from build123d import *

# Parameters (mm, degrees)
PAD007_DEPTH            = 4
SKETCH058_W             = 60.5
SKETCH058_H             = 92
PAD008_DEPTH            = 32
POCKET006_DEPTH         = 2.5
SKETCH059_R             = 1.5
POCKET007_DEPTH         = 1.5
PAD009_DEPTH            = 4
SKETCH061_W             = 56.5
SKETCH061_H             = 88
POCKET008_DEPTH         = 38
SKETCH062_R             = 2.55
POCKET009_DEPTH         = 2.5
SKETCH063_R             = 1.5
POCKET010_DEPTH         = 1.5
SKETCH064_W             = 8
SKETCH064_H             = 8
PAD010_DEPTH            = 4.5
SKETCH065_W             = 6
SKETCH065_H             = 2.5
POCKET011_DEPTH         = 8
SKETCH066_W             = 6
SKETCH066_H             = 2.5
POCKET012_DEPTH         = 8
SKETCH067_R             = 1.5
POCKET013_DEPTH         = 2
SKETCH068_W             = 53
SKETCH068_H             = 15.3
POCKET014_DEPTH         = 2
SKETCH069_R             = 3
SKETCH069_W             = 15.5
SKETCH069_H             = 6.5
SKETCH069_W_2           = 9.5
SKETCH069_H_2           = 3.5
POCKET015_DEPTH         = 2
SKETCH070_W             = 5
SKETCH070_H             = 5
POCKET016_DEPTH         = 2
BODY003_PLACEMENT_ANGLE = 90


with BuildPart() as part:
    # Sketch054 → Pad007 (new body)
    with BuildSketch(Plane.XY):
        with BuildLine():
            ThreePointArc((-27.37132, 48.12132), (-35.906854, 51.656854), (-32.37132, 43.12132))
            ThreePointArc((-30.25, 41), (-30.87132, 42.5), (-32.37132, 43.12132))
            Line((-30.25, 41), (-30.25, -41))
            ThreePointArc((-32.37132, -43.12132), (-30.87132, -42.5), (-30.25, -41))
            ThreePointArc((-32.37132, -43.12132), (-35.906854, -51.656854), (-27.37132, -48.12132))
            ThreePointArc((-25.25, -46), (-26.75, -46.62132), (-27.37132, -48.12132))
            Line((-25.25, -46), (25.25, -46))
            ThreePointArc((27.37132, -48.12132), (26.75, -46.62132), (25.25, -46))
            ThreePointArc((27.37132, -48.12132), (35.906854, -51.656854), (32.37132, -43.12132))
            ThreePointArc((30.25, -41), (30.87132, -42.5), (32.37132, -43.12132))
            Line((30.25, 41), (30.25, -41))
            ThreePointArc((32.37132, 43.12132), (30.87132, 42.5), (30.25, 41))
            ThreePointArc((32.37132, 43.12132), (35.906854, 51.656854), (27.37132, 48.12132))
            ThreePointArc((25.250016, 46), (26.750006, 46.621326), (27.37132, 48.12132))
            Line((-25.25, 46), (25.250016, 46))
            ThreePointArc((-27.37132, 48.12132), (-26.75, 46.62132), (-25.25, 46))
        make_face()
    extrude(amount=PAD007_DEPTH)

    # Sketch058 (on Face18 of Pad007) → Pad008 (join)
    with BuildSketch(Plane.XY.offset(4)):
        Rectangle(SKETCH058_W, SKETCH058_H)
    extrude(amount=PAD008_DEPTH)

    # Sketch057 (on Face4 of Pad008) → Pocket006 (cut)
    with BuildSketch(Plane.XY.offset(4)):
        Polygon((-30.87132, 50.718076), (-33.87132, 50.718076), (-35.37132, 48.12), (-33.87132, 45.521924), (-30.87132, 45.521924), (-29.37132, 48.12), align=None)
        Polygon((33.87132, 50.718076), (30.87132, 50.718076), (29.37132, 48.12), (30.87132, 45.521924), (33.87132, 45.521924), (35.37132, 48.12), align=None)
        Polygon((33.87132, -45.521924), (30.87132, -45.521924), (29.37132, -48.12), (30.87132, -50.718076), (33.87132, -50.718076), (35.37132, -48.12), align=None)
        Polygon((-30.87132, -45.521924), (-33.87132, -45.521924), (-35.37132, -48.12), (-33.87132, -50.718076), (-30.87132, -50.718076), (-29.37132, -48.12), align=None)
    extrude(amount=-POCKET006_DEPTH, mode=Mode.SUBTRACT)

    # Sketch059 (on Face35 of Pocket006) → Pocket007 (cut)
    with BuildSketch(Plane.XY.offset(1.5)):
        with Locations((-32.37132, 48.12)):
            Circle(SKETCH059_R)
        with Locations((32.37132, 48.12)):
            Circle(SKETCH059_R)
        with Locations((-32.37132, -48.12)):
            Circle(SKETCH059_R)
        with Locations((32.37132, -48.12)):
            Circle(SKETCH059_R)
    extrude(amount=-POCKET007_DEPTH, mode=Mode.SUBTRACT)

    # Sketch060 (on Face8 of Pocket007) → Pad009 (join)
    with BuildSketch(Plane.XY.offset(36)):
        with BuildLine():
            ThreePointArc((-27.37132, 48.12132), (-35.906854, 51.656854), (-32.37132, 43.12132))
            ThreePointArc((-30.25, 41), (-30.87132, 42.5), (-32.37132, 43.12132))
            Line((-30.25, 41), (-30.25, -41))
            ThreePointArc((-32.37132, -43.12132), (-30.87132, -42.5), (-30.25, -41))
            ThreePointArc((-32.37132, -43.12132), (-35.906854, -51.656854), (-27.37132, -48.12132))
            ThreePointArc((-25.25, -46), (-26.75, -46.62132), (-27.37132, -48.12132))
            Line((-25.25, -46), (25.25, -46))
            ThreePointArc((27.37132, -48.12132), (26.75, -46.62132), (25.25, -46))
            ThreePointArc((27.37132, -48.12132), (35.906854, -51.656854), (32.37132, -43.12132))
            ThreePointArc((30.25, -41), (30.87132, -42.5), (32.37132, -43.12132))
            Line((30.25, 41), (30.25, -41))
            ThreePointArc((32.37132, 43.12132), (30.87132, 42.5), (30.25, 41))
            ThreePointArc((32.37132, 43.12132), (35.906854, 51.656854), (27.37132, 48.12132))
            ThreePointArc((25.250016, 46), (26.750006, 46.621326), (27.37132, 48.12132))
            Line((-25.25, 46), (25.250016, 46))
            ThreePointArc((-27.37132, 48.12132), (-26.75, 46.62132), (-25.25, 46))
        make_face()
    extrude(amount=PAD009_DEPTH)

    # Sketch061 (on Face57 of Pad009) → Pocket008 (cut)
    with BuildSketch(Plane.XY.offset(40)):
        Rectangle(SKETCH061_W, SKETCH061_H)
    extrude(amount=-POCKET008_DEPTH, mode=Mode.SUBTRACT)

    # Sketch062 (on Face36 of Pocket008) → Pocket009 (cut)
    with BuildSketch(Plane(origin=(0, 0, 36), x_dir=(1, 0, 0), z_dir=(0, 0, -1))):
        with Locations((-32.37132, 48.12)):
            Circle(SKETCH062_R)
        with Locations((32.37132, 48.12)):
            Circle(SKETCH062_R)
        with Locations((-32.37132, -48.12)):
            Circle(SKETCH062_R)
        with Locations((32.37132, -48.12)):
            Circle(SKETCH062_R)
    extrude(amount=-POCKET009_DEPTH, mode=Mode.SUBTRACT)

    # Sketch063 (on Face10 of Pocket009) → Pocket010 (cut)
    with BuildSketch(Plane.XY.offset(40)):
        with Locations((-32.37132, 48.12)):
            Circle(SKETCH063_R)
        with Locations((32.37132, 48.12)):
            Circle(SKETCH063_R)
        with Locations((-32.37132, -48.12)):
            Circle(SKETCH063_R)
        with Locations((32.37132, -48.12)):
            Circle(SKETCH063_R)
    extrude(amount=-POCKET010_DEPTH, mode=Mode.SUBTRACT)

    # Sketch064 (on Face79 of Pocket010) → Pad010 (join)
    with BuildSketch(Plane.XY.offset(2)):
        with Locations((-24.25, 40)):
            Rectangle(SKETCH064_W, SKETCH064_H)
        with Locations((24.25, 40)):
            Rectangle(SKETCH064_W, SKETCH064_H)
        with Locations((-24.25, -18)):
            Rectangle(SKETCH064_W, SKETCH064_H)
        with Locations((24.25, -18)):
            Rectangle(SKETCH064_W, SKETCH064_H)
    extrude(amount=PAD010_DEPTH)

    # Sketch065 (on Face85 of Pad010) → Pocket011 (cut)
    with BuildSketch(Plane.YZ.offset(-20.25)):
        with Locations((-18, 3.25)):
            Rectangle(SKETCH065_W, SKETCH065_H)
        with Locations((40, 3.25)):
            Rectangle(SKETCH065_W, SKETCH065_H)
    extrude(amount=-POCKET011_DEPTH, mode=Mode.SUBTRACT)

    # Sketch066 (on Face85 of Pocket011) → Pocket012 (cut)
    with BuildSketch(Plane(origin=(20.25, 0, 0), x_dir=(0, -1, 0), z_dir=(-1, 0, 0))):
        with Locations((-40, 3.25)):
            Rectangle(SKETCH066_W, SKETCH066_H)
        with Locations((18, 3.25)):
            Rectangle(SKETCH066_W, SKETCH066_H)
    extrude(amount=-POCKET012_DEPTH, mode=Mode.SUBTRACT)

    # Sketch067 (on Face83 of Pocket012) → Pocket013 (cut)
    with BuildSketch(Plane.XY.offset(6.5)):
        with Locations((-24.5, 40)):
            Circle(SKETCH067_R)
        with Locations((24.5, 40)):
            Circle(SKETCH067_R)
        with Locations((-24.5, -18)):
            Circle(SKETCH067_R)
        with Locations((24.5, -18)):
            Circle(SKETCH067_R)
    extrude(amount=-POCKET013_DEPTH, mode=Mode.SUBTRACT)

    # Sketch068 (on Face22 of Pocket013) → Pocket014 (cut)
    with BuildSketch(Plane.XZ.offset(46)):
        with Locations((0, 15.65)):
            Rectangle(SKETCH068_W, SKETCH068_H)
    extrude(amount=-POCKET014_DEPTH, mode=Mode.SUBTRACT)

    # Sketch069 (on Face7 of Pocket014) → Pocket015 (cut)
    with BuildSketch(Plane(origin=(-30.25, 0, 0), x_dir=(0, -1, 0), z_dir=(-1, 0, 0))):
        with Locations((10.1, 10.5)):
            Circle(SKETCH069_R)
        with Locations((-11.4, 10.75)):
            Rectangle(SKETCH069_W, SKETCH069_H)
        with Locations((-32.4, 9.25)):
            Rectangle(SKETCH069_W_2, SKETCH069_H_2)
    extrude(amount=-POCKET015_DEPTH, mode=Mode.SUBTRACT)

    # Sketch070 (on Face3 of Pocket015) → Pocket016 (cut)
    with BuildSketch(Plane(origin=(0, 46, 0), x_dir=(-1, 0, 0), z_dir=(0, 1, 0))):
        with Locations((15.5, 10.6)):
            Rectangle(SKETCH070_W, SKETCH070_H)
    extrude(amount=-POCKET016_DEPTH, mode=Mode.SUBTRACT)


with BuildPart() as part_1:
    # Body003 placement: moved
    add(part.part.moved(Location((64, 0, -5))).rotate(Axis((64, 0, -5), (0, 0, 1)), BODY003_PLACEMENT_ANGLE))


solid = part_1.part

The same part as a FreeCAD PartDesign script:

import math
import FreeCAD as App
import Part
import Sketcher
Q = App.Units.Quantity


def add_polygon(sketch, points):
    """Adds a closed chain of lines whose ends are joined by coincident constraints."""
    first, n = sketch.GeometryCount, len(points)
    for a, b in zip(points, points[1:] + points[:1]):
        sketch.addGeometry(Part.LineSegment(App.Vector(*a, 0), App.Vector(*b, 0)), False)
    for i in range(n):
        sketch.addConstraint(Sketcher.Constraint("Coincident", first + i, 2, first + (i + 1) % n, 1))

doc = App.newDocument("Part")
body = doc.addObject("PartDesign::Body", "Body")

# Sketch on XY plane
sketch1 = body.newObject("Sketcher::SketchObject", "Sketch")
sketch1.AttachmentSupport = (doc.getObject("XY_Plane"), [""])
sketch1.MapMode = "FlatFace"
sketch1.addGeometry(Part.ArcOfCircle(Part.Circle(App.Vector(-32.4, 48.1, 0), App.Vector(0, 0, 1), 5), math.radians(0), math.radians(270)), False)
sketch1.addGeometry(Part.ArcOfCircle(Part.Circle(App.Vector(-32.4, 41, 0), App.Vector(0, 0, 1), 2.1), math.radians(0), math.radians(90)), False)
sketch1.addGeometry(Part.LineSegment(App.Vector(-30.2, 41, 0), App.Vector(-30.2, -41, 0)), False)
sketch1.addGeometry(Part.ArcOfCircle(Part.Circle(App.Vector(-32.4, -41, 0), App.Vector(0, 0, 1), 2.1), math.radians(-90), math.radians(0)), False)
sketch1.addGeometry(Part.ArcOfCircle(Part.Circle(App.Vector(-32.4, -48.1, 0), App.Vector(0, 0, 1), 5), math.radians(90), math.radians(360)), False)
sketch1.addGeometry(Part.ArcOfCircle(Part.Circle(App.Vector(-25.3, -48.1, 0), App.Vector(0, 0, 1), 2.1), math.radians(90), math.radians(180)), False)
sketch1.addGeometry(Part.LineSegment(App.Vector(-25.2, -46, 0), App.Vector(25.2, -46, 0)), False)
sketch1.addGeometry(Part.ArcOfCircle(Part.Circle(App.Vector(25.3, -48.1, 0), App.Vector(0, 0, 1), 2.1), math.radians(0), math.radians(90)), False)
sketch1.addGeometry(Part.ArcOfCircle(Part.Circle(App.Vector(32.4, -48.1, 0), App.Vector(0, 0, 1), 5), math.radians(180), math.radians(450)), False)
sketch1.addGeometry(Part.ArcOfCircle(Part.Circle(App.Vector(32.4, -41, 0), App.Vector(0, 0, 1), 2.1), math.radians(180), math.radians(270)), False)
sketch1.addGeometry(Part.LineSegment(App.Vector(30.2, -41, 0), App.Vector(30.2, 41, 0)), False)
sketch1.addGeometry(Part.ArcOfCircle(Part.Circle(App.Vector(32.4, 41, 0), App.Vector(0, 0, 1), 2.1), math.radians(90), math.radians(180)), False)
sketch1.addGeometry(Part.ArcOfCircle(Part.Circle(App.Vector(32.4, 48.1, 0), App.Vector(0, 0, 1), 5), math.radians(-90), math.radians(180)), False)
sketch1.addGeometry(Part.ArcOfCircle(Part.Circle(App.Vector(25.3, 48.1, 0), App.Vector(0, 0, 1), 2.1), math.radians(-90), math.radians(0)), False)
sketch1.addGeometry(Part.LineSegment(App.Vector(25.3, 46, 0), App.Vector(-25.2, 46, 0)), False)
sketch1.addGeometry(Part.ArcOfCircle(Part.Circle(App.Vector(-25.3, 48.1, 0), App.Vector(0, 0, 1), 2.1), math.radians(180), math.radians(270)), False)
sketch1.addConstraint(Sketcher.Constraint("Tangent", 0, 2, 1, 2))
sketch1.addConstraint(Sketcher.Constraint("Tangent", 1, 1, 2, 1))
sketch1.addConstraint(Sketcher.Constraint("Tangent", 2, 2, 3, 2))
sketch1.addConstraint(Sketcher.Constraint("Tangent", 3, 1, 4, 1))
sketch1.addConstraint(Sketcher.Constraint("Tangent", 4, 2, 5, 2))
sketch1.addConstraint(Sketcher.Constraint("Tangent", 5, 1, 6, 1))
sketch1.addConstraint(Sketcher.Constraint("Tangent", 6, 2, 7, 2))
sketch1.addConstraint(Sketcher.Constraint("Tangent", 7, 1, 8, 1))
sketch1.addConstraint(Sketcher.Constraint("Tangent", 8, 2, 9, 2))
sketch1.addConstraint(Sketcher.Constraint("Tangent", 9, 1, 10, 1))
sketch1.addConstraint(Sketcher.Constraint("Tangent", 10, 2, 11, 2))
sketch1.addConstraint(Sketcher.Constraint("Tangent", 11, 1, 12, 1))
sketch1.addConstraint(Sketcher.Constraint("Tangent", 12, 2, 13, 2))
sketch1.addConstraint(Sketcher.Constraint("Coincident", 13, 1, 14, 1))
sketch1.addConstraint(Sketcher.Constraint("Tangent", 14, 2, 15, 2))
sketch1.addConstraint(Sketcher.Constraint("Tangent", 15, 1, 0, 1))
sketch1.addConstraint(Sketcher.Constraint("Vertical", 2))
sketch1.addConstraint(Sketcher.Constraint("Horizontal", 6))
sketch1.addConstraint(Sketcher.Constraint("Vertical", 10))
sketch1.addConstraint(Sketcher.Constraint("Horizontal", 14))
sketch1.addConstraint(Sketcher.Constraint("Equal", 1, 3))
sketch1.addConstraint(Sketcher.Constraint("Equal", 0, 4))
sketch1.addConstraint(Sketcher.Constraint("Equal", 3, 5))
sketch1.addConstraint(Sketcher.Constraint("Equal", 5, 7))
sketch1.addConstraint(Sketcher.Constraint("Equal", 4, 8))
sketch1.addConstraint(Sketcher.Constraint("Equal", 7, 9))
sketch1.addConstraint(Sketcher.Constraint("Equal", 9, 11))
sketch1.addConstraint(Sketcher.Constraint("Equal", 8, 12))
sketch1.addConstraint(Sketcher.Constraint("Equal", 11, 13))
sketch1.addConstraint(Sketcher.Constraint("Equal", 13, 15))
sketch1.addConstraint(Sketcher.Constraint("Symmetric", 0, 3, 8, 3, -1, 1))
sketch1.addConstraint(Sketcher.Constraint("Symmetric", 3, 3, 11, 3, -1, 1))
sketch1.addConstraint(Sketcher.Constraint("Symmetric", 5, 3, 13, 3, -1, 1))
sketch1.addConstraint(Sketcher.Constraint("Symmetric", 4, 3, 8, 3, -2))
sketch1.addConstraint(Sketcher.Constraint("Horizontal", 4, 3, 5, 3))
sketch1.addConstraint(Sketcher.Constraint("Vertical", 0, 3, 1, 3))
sketch1.addConstraint(Sketcher.Constraint("Radius", 0, 5.0))
sketch1.addConstraint(Sketcher.Constraint("DistanceY", 2, 2, 2, 1, 82.0))
sketch1.addConstraint(Sketcher.Constraint("DistanceX", 6, 1, 6, 2, 50.5))
sketch1.addConstraint(Sketcher.Constraint("Radius", 1, 2.121319))
sketch1.addConstraint(Sketcher.Constraint("DistanceX", 14, 2, 14, 1, 50.500016))
pad1 = body.newObject("PartDesign::Pad", "Pad")
pad1.Profile = sketch1
pad1.Length = 4

# Sketch on XY plane
sketch2 = body.newObject("Sketcher::SketchObject", "Sketch001")
sketch2.AttachmentSupport = (doc.getObject("XY_Plane"), [""])
sketch2.MapMode = "FlatFace"
sketch2.AttachmentOffset = App.Placement(App.Vector(0, 0, 4), App.Rotation())
add_polygon(sketch2, [(-30, 46), (-30, -46), (30, -46), (30, 46)])  # lines 0-3
sketch2.addConstraint(Sketcher.Constraint("Vertical", 0))
sketch2.addConstraint(Sketcher.Constraint("Horizontal", 1))
sketch2.addConstraint(Sketcher.Constraint("Vertical", 2))
sketch2.addConstraint(Sketcher.Constraint("Horizontal", 3))
sketch2.addConstraint(Sketcher.Constraint("Symmetric", 0, 2, 2, 2, -1, 1))
sketch2.addConstraint(Sketcher.Constraint("DistanceY", 0, 2, 0, 1, 92.0))
sketch2.addConstraint(Sketcher.Constraint("DistanceX", 1, 1, 1, 2, 60.5))
pad2 = body.newObject("PartDesign::Pad", "Pad001")
pad2.Profile = sketch2
pad2.Length = 32

# Sketch on XY plane
sketch3 = body.newObject("Sketcher::SketchObject", "Sketch002")
sketch3.AttachmentSupport = (doc.getObject("XY_Plane"), [""])
sketch3.MapMode = "FlatFace"
sketch3.AttachmentOffset = App.Placement(App.Vector(0, 0, 4), App.Rotation())
add_polygon(sketch3, [(-30.9, 50.7), (-33.9, 50.7), (-35.4, 48.1), (-33.9, 45.5), (-30.9, 45.5), (-29.4, 48.1)])  # lines 0-5
add_polygon(sketch3, [(33.9, 50.7), (30.9, 50.7), (29.4, 48.1), (30.9, 45.5), (33.9, 45.5), (35.4, 48.1)])  # lines 6-11
add_polygon(sketch3, [(33.9, -45.5), (30.9, -45.5), (29.4, -48.1), (30.9, -50.7), (33.9, -50.7), (35.4, -48.1)])  # lines 12-17
add_polygon(sketch3, [(-30.9, -45.5), (-33.9, -45.5), (-35.4, -48.1), (-33.9, -50.7), (-30.9, -50.7), (-29.4, -48.1)])  # lines 18-23
sketch3.addConstraint(Sketcher.Constraint("Horizontal", 0))
sketch3.addConstraint(Sketcher.Constraint("Horizontal", 3))
sketch3.addConstraint(Sketcher.Constraint("Horizontal", 6))
sketch3.addConstraint(Sketcher.Constraint("Horizontal", 9))
sketch3.addConstraint(Sketcher.Constraint("Horizontal", 12))
sketch3.addConstraint(Sketcher.Constraint("Horizontal", 15))
sketch3.addConstraint(Sketcher.Constraint("Horizontal", 18))
sketch3.addConstraint(Sketcher.Constraint("Horizontal", 21))
sketch3.addConstraint(Sketcher.Constraint("Symmetric", 3, 2, 12, 2, -1, 1))
sketch3.addConstraint(Sketcher.Constraint("Symmetric", 4, 2, 13, 2, -1, 1))
sketch3.addConstraint(Sketcher.Constraint("Symmetric", 5, 2, 14, 2, -1, 1))
sketch3.addConstraint(Sketcher.Constraint("Symmetric", 1, 2, 16, 2, -1, 1))
sketch3.addConstraint(Sketcher.Constraint("Symmetric", 9, 2, 18, 2, -1, 1))
sketch3.addConstraint(Sketcher.Constraint("Symmetric", 10, 2, 19, 2, -1, 1))
sketch3.addConstraint(Sketcher.Constraint("Symmetric", 11, 2, 20, 2, -1, 1))
sketch3.addConstraint(Sketcher.Constraint("Symmetric", 7, 2, 22, 2, -1, 1))
sketch3.addConstraint(Sketcher.Constraint("Symmetric", 5, 2, 6, 2, -2))
sketch3.addConstraint(Sketcher.Constraint("Symmetric", 4, 2, 7, 2, -2))
sketch3.addConstraint(Sketcher.Constraint("Symmetric", 3, 2, 8, 2, -2))
sketch3.addConstraint(Sketcher.Constraint("Symmetric", 1, 2, 10, 2, -2))
sketch3.addConstraint(Sketcher.Constraint("Parallel", 1, 4))
sketch3.addConstraint(Sketcher.Constraint("Parallel", 2, 5))
sketch3.addConstraint(Sketcher.Constraint("Parallel", 4, 7))
sketch3.addConstraint(Sketcher.Constraint("Parallel", 7, 10))
sketch3.addConstraint(Sketcher.Constraint("Parallel", 8, 11))
sketch3.addConstraint(Sketcher.Constraint("Parallel", 13, 16))
sketch3.addConstraint(Sketcher.Constraint("Parallel", 14, 17))
sketch3.addConstraint(Sketcher.Constraint("Parallel", 19, 22))
sketch3.addConstraint(Sketcher.Constraint("Parallel", 20, 23))
sketch3.addConstraint(Sketcher.Constraint("Horizontal", 1, 2, 4, 2))
sketch3.addConstraint(Sketcher.Constraint("Vertical", 0, 2, 2, 2))
sketch3.addConstraint(Sketcher.Constraint("DistanceX", 0, 2, 0, 1, 3.0))
sketch3.addConstraint(Sketcher.Constraint("Angle", 1, Q("-120.000002 deg")))
sketch3.addConstraint(Sketcher.Constraint("Distance", 1, 3.0))
sketch3.addConstraint(Sketcher.Constraint("DistanceY", -1, 1, 1, 2, 48.12))
sketch3.addConstraint(Sketcher.Constraint("DistanceX", 0, 2, -1, 1, 33.87132))
pocket1 = body.newObject("PartDesign::Pocket", "Pocket")
pocket1.Profile = sketch3
pocket1.Length = 2.5

# Sketch on XY plane
sketch4 = body.newObject("Sketcher::SketchObject", "Sketch003")
sketch4.AttachmentSupport = (doc.getObject("XY_Plane"), [""])
sketch4.MapMode = "FlatFace"
sketch4.AttachmentOffset = App.Placement(App.Vector(0, 0, 1.5), App.Rotation())
sketch4.addGeometry(Part.Circle(App.Vector(-32.4, 48.1, 0), App.Vector(0, 0, 1), 1.5), False)
sketch4.addGeometry(Part.Circle(App.Vector(32.4, 48.1, 0), App.Vector(0, 0, 1), 1.5), False)
sketch4.addGeometry(Part.Circle(App.Vector(-32.4, -48.1, 0), App.Vector(0, 0, 1), 1.5), False)
sketch4.addGeometry(Part.Circle(App.Vector(32.4, -48.1, 0), App.Vector(0, 0, 1), 1.5), False)
sketch4.addConstraint(Sketcher.Constraint("Equal", 0, 1))
sketch4.addConstraint(Sketcher.Constraint("Equal", 1, 2))
sketch4.addConstraint(Sketcher.Constraint("Equal", 2, 3))
sketch4.addConstraint(Sketcher.Constraint("Symmetric", 1, 3, 2, 3, -1, 1))
sketch4.addConstraint(Sketcher.Constraint("Symmetric", 0, 3, 3, 3, -1, 1))
sketch4.addConstraint(Sketcher.Constraint("Symmetric", 0, 3, 1, 3, -2))
sketch4.addConstraint(Sketcher.Constraint("Diameter", 0, 3.0))
sketch4.addConstraint(Sketcher.Constraint("DistanceY", -1, 1, 0, 3, 48.12))
sketch4.addConstraint(Sketcher.Constraint("DistanceX", 0, 3, -1, 1, 32.37132))
pocket2 = body.newObject("PartDesign::Pocket", "Pocket001")
pocket2.Profile = sketch4
pocket2.Length = 1.5

# Sketch on XY plane
sketch5 = body.newObject("Sketcher::SketchObject", "Sketch004")
sketch5.AttachmentSupport = (doc.getObject("XY_Plane"), [""])
sketch5.MapMode = "FlatFace"
sketch5.AttachmentOffset = App.Placement(App.Vector(0, 0, 36), App.Rotation())
sketch5.addGeometry(Part.ArcOfCircle(Part.Circle(App.Vector(-32.4, 48.1, 0), App.Vector(0, 0, 1), 5), math.radians(0), math.radians(270)), False)
sketch5.addGeometry(Part.ArcOfCircle(Part.Circle(App.Vector(-32.4, 41, 0), App.Vector(0, 0, 1), 2.1), math.radians(0), math.radians(90)), False)
sketch5.addGeometry(Part.LineSegment(App.Vector(-30.2, 41, 0), App.Vector(-30.2, -41, 0)), False)
sketch5.addGeometry(Part.ArcOfCircle(Part.Circle(App.Vector(-32.4, -41, 0), App.Vector(0, 0, 1), 2.1), math.radians(-90), math.radians(0)), False)
sketch5.addGeometry(Part.ArcOfCircle(Part.Circle(App.Vector(-32.4, -48.1, 0), App.Vector(0, 0, 1), 5), math.radians(90), math.radians(360)), False)
sketch5.addGeometry(Part.ArcOfCircle(Part.Circle(App.Vector(-25.3, -48.1, 0), App.Vector(0, 0, 1), 2.1), math.radians(90), math.radians(180)), False)
sketch5.addGeometry(Part.LineSegment(App.Vector(-25.2, -46, 0), App.Vector(25.2, -46, 0)), False)
sketch5.addGeometry(Part.ArcOfCircle(Part.Circle(App.Vector(25.3, -48.1, 0), App.Vector(0, 0, 1), 2.1), math.radians(0), math.radians(90)), False)
sketch5.addGeometry(Part.ArcOfCircle(Part.Circle(App.Vector(32.4, -48.1, 0), App.Vector(0, 0, 1), 5), math.radians(180), math.radians(450)), False)
sketch5.addGeometry(Part.ArcOfCircle(Part.Circle(App.Vector(32.4, -41, 0), App.Vector(0, 0, 1), 2.1), math.radians(180), math.radians(270)), False)
sketch5.addGeometry(Part.LineSegment(App.Vector(30.2, -41, 0), App.Vector(30.2, 41, 0)), False)
sketch5.addGeometry(Part.ArcOfCircle(Part.Circle(App.Vector(32.4, 41, 0), App.Vector(0, 0, 1), 2.1), math.radians(90), math.radians(180)), False)
sketch5.addGeometry(Part.ArcOfCircle(Part.Circle(App.Vector(32.4, 48.1, 0), App.Vector(0, 0, 1), 5), math.radians(-90), math.radians(180)), False)
sketch5.addGeometry(Part.ArcOfCircle(Part.Circle(App.Vector(25.3, 48.1, 0), App.Vector(0, 0, 1), 2.1), math.radians(-90), math.radians(0)), False)
sketch5.addGeometry(Part.LineSegment(App.Vector(25.3, 46, 0), App.Vector(-25.2, 46, 0)), False)
sketch5.addGeometry(Part.ArcOfCircle(Part.Circle(App.Vector(-25.3, 48.1, 0), App.Vector(0, 0, 1), 2.1), math.radians(180), math.radians(270)), False)
sketch5.addConstraint(Sketcher.Constraint("Tangent", 0, 2, 1, 2))
sketch5.addConstraint(Sketcher.Constraint("Tangent", 1, 1, 2, 1))
sketch5.addConstraint(Sketcher.Constraint("Tangent", 2, 2, 3, 2))
sketch5.addConstraint(Sketcher.Constraint("Tangent", 3, 1, 4, 1))
sketch5.addConstraint(Sketcher.Constraint("Tangent", 4, 2, 5, 2))
sketch5.addConstraint(Sketcher.Constraint("Tangent", 5, 1, 6, 1))
sketch5.addConstraint(Sketcher.Constraint("Tangent", 6, 2, 7, 2))
sketch5.addConstraint(Sketcher.Constraint("Tangent", 7, 1, 8, 1))
sketch5.addConstraint(Sketcher.Constraint("Tangent", 8, 2, 9, 2))
sketch5.addConstraint(Sketcher.Constraint("Tangent", 9, 1, 10, 1))
sketch5.addConstraint(Sketcher.Constraint("Tangent", 10, 2, 11, 2))
sketch5.addConstraint(Sketcher.Constraint("Tangent", 11, 1, 12, 1))
sketch5.addConstraint(Sketcher.Constraint("Tangent", 12, 2, 13, 2))
sketch5.addConstraint(Sketcher.Constraint("Coincident", 13, 1, 14, 1))
sketch5.addConstraint(Sketcher.Constraint("Tangent", 14, 2, 15, 2))
sketch5.addConstraint(Sketcher.Constraint("Tangent", 15, 1, 0, 1))
sketch5.addConstraint(Sketcher.Constraint("Vertical", 2))
sketch5.addConstraint(Sketcher.Constraint("Horizontal", 6))
sketch5.addConstraint(Sketcher.Constraint("Vertical", 10))
sketch5.addConstraint(Sketcher.Constraint("Horizontal", 14))
sketch5.addConstraint(Sketcher.Constraint("Equal", 1, 3))
sketch5.addConstraint(Sketcher.Constraint("Equal", 0, 4))
sketch5.addConstraint(Sketcher.Constraint("Equal", 3, 5))
sketch5.addConstraint(Sketcher.Constraint("Equal", 5, 7))
sketch5.addConstraint(Sketcher.Constraint("Equal", 4, 8))
sketch5.addConstraint(Sketcher.Constraint("Equal", 7, 9))
sketch5.addConstraint(Sketcher.Constraint("Equal", 9, 11))
sketch5.addConstraint(Sketcher.Constraint("Equal", 8, 12))
sketch5.addConstraint(Sketcher.Constraint("Equal", 11, 13))
sketch5.addConstraint(Sketcher.Constraint("Equal", 13, 15))
sketch5.addConstraint(Sketcher.Constraint("Symmetric", 0, 3, 8, 3, -1, 1))
sketch5.addConstraint(Sketcher.Constraint("Symmetric", 3, 3, 11, 3, -1, 1))
sketch5.addConstraint(Sketcher.Constraint("Symmetric", 5, 3, 13, 3, -1, 1))
sketch5.addConstraint(Sketcher.Constraint("Symmetric", 4, 3, 8, 3, -2))
sketch5.addConstraint(Sketcher.Constraint("Horizontal", 4, 3, 5, 3))
sketch5.addConstraint(Sketcher.Constraint("Vertical", 0, 3, 1, 3))
sketch5.addConstraint(Sketcher.Constraint("Radius", 0, 5.0))
sketch5.addConstraint(Sketcher.Constraint("DistanceY", 2, 2, 2, 1, 82.0))
sketch5.addConstraint(Sketcher.Constraint("DistanceX", 6, 1, 6, 2, 50.5))
sketch5.addConstraint(Sketcher.Constraint("Radius", 1, 2.121319))
sketch5.addConstraint(Sketcher.Constraint("DistanceX", 14, 2, 14, 1, 50.500016))
pad3 = body.newObject("PartDesign::Pad", "Pad002")
pad3.Profile = sketch5
pad3.Length = 4

# Sketch on XY plane
sketch6 = body.newObject("Sketcher::SketchObject", "Sketch005")
sketch6.AttachmentSupport = (doc.getObject("XY_Plane"), [""])
sketch6.MapMode = "FlatFace"
sketch6.AttachmentOffset = App.Placement(App.Vector(0, 0, 40), App.Rotation())
add_polygon(sketch6, [(-28, 44), (-28, -44), (28, -44), (28, 44)])  # lines 0-3
sketch6.addConstraint(Sketcher.Constraint("Vertical", 0))
sketch6.addConstraint(Sketcher.Constraint("Horizontal", 1))
sketch6.addConstraint(Sketcher.Constraint("Vertical", 2))
sketch6.addConstraint(Sketcher.Constraint("Horizontal", 3))
sketch6.addConstraint(Sketcher.Constraint("Symmetric", 0, 2, 2, 2, -1, 1))
sketch6.addConstraint(Sketcher.Constraint("DistanceY", 0, 2, 0, 1, 88.0))
sketch6.addConstraint(Sketcher.Constraint("DistanceX", 1, 1, 1, 2, 56.5))
pocket3 = body.newObject("PartDesign::Pocket", "Pocket002")
pocket3.Profile = sketch6
pocket3.Length = 38

# Sketch on XY plane
sketch7 = body.newObject("Sketcher::SketchObject", "Sketch006")
sketch7.AttachmentSupport = (doc.getObject("XY_Plane"), [""])
sketch7.MapMode = "FlatFace"
sketch7.AttachmentOffset = App.Placement(App.Vector(0, 0, 36), App.Rotation())
sketch7.addGeometry(Part.Circle(App.Vector(-32.4, -48.1, 0), App.Vector(0, 0, 1), 2.5), False)
sketch7.addGeometry(Part.Circle(App.Vector(32.4, -48.1, 0), App.Vector(0, 0, 1), 2.5), False)
sketch7.addGeometry(Part.Circle(App.Vector(-32.4, 48.1, 0), App.Vector(0, 0, 1), 2.5), False)
sketch7.addGeometry(Part.Circle(App.Vector(32.4, 48.1, 0), App.Vector(0, 0, 1), 2.5), False)
sketch7.addConstraint(Sketcher.Constraint("Equal", 0, 1))
sketch7.addConstraint(Sketcher.Constraint("Equal", 1, 2))
sketch7.addConstraint(Sketcher.Constraint("Equal", 2, 3))
sketch7.addConstraint(Sketcher.Constraint("Symmetric", 1, 3, 2, 3, -1, 1))
sketch7.addConstraint(Sketcher.Constraint("Symmetric", 0, 3, 3, 3, -1, 1))
sketch7.addConstraint(Sketcher.Constraint("Symmetric", 0, 3, 1, 3, -2))
sketch7.addConstraint(Sketcher.Constraint("Diameter", 0, 5.1))
sketch7.addConstraint(Sketcher.Constraint("DistanceY", 0, 3, -1, 1, 48.12))
sketch7.addConstraint(Sketcher.Constraint("DistanceX", 0, 3, -1, 1, 32.37132))
pocket4 = body.newObject("PartDesign::Pocket", "Pocket003")
pocket4.Profile = sketch7
pocket4.Length = 2.5
pocket4.Reversed = True

# Sketch on XY plane
sketch8 = body.newObject("Sketcher::SketchObject", "Sketch007")
sketch8.AttachmentSupport = (doc.getObject("XY_Plane"), [""])
sketch8.MapMode = "FlatFace"
sketch8.AttachmentOffset = App.Placement(App.Vector(0, 0, 40), App.Rotation())
sketch8.addGeometry(Part.Circle(App.Vector(-32.4, 48.1, 0), App.Vector(0, 0, 1), 1.5), False)
sketch8.addGeometry(Part.Circle(App.Vector(32.4, 48.1, 0), App.Vector(0, 0, 1), 1.5), False)
sketch8.addGeometry(Part.Circle(App.Vector(-32.4, -48.1, 0), App.Vector(0, 0, 1), 1.5), False)
sketch8.addGeometry(Part.Circle(App.Vector(32.4, -48.1, 0), App.Vector(0, 0, 1), 1.5), False)
sketch8.addConstraint(Sketcher.Constraint("Equal", 0, 1))
sketch8.addConstraint(Sketcher.Constraint("Equal", 1, 2))
sketch8.addConstraint(Sketcher.Constraint("Equal", 2, 3))
sketch8.addConstraint(Sketcher.Constraint("Symmetric", 1, 3, 2, 3, -1, 1))
sketch8.addConstraint(Sketcher.Constraint("Symmetric", 0, 3, 3, 3, -1, 1))
sketch8.addConstraint(Sketcher.Constraint("Symmetric", 0, 3, 1, 3, -2))
sketch8.addConstraint(Sketcher.Constraint("Diameter", 0, 3.0))
sketch8.addConstraint(Sketcher.Constraint("DistanceY", -1, 1, 0, 3, 48.12))
sketch8.addConstraint(Sketcher.Constraint("DistanceX", 0, 3, -1, 1, 32.37132))
pocket5 = body.newObject("PartDesign::Pocket", "Pocket004")
pocket5.Profile = sketch8
pocket5.Length = 1.5

# Sketch on XY plane
sketch9 = body.newObject("Sketcher::SketchObject", "Sketch008")
sketch9.AttachmentSupport = (doc.getObject("XY_Plane"), [""])
sketch9.MapMode = "FlatFace"
sketch9.AttachmentOffset = App.Placement(App.Vector(0, 0, 2), App.Rotation())
add_polygon(sketch9, [(-28, 44), (-28, 36), (-20, 36), (-20, 44)])  # lines 0-3
add_polygon(sketch9, [(20, 44), (20, 36), (28, 36), (28, 44)])  # lines 4-7
add_polygon(sketch9, [(-28, -14), (-28, -22), (-20, -22), (-20, -14)])  # lines 8-11
add_polygon(sketch9, [(20, -14), (20, -22), (28, -22), (28, -14)])  # lines 12-15
sketch9.addConstraint(Sketcher.Constraint("Vertical", 0))
sketch9.addConstraint(Sketcher.Constraint("Horizontal", 1))
sketch9.addConstraint(Sketcher.Constraint("Vertical", 2))
sketch9.addConstraint(Sketcher.Constraint("Horizontal", 3))
sketch9.addConstraint(Sketcher.Constraint("Vertical", 4))
sketch9.addConstraint(Sketcher.Constraint("Horizontal", 5))
sketch9.addConstraint(Sketcher.Constraint("Vertical", 6))
sketch9.addConstraint(Sketcher.Constraint("Horizontal", 7))
sketch9.addConstraint(Sketcher.Constraint("Vertical", 8))
sketch9.addConstraint(Sketcher.Constraint("Horizontal", 9))
sketch9.addConstraint(Sketcher.Constraint("Vertical", 10))
sketch9.addConstraint(Sketcher.Constraint("Horizontal", 11))
sketch9.addConstraint(Sketcher.Constraint("Vertical", 12))
sketch9.addConstraint(Sketcher.Constraint("Horizontal", 13))
sketch9.addConstraint(Sketcher.Constraint("Vertical", 14))
sketch9.addConstraint(Sketcher.Constraint("Horizontal", 15))
sketch9.addConstraint(Sketcher.Constraint("Symmetric", 1, 2, 4, 2, -2))
sketch9.addConstraint(Sketcher.Constraint("Symmetric", 3, 2, 6, 2, -2))
sketch9.addConstraint(Sketcher.Constraint("Symmetric", 9, 2, 12, 2, -2))
sketch9.addConstraint(Sketcher.Constraint("Symmetric", 11, 2, 14, 2, -2))
sketch9.addConstraint(Sketcher.Constraint("Vertical", 3, 2, 8, 2))
sketch9.addConstraint(Sketcher.Constraint("Vertical", 2, 2, 9, 2))
sketch9.addConstraint(Sketcher.Constraint("Equal", 15, 0))
sketch9.addConstraint(Sketcher.Constraint("Equal", 6, 8))
sketch9.addConstraint(Sketcher.Constraint("DistanceX", 1, 1, 1, 2, 8.0))
sketch9.addConstraint(Sketcher.Constraint("DistanceY", -1, 1, 0, 2, 36.0))
sketch9.addConstraint(Sketcher.Constraint("DistanceY", 8, 2, -1, 1, 22.0))
sketch9.addConstraint(Sketcher.Constraint("DistanceX", 1, 2, 4, 2, 40.5))
pad4 = body.newObject("PartDesign::Pad", "Pad003")
pad4.Profile = sketch9
pad4.Length = 4.5

# Sketch on YZ plane
sketch10 = body.newObject("Sketcher::SketchObject", "Sketch009")
sketch10.AttachmentSupport = (doc.getObject("YZ_Plane"), [""])
sketch10.MapMode = "FlatFace"
sketch10.AttachmentOffset = App.Placement(App.Vector(0, 0, -20.25), App.Rotation())
add_polygon(sketch10, [(-21, 4.5), (-21, 2), (-15, 2), (-15, 4.5)])  # lines 0-3
add_polygon(sketch10, [(37, 4.5), (37, 2), (43, 2), (43, 4.5)])  # lines 4-7
sketch10.addConstraint(Sketcher.Constraint("Vertical", 0))
sketch10.addConstraint(Sketcher.Constraint("Horizontal", 1))
sketch10.addConstraint(Sketcher.Constraint("Vertical", 2))
sketch10.addConstraint(Sketcher.Constraint("Horizontal", 3))
sketch10.addConstraint(Sketcher.Constraint("Vertical", 4))
sketch10.addConstraint(Sketcher.Constraint("Horizontal", 5))
sketch10.addConstraint(Sketcher.Constraint("Vertical", 6))
sketch10.addConstraint(Sketcher.Constraint("Horizontal", 7))
sketch10.addConstraint(Sketcher.Constraint("Horizontal", 1, 2, 4, 2))
sketch10.addConstraint(Sketcher.Constraint("Horizontal", 3, 2, 6, 2))
sketch10.addConstraint(Sketcher.Constraint("Equal", 3, 5))
sketch10.addConstraint(Sketcher.Constraint("DistanceX", 1, 1, 1, 2, 6.0))
sketch10.addConstraint(Sketcher.Constraint("DistanceY", 0, 2, 0, 1, 2.5))
sketch10.addConstraint(Sketcher.Constraint("DistanceX", 0, 2, -1, 1, 21.0))
sketch10.addConstraint(Sketcher.Constraint("DistanceY", -1, 1, 0, 2, 2.0))
sketch10.addConstraint(Sketcher.Constraint("DistanceX", -1, 1, 4, 2, 37.0))
pocket6 = body.newObject("PartDesign::Pocket", "Pocket005")
pocket6.Profile = sketch10
pocket6.Length = 8

# Sketch on YZ plane
sketch11 = body.newObject("Sketcher::SketchObject", "Sketch010")
sketch11.AttachmentSupport = (doc.getObject("YZ_Plane"), [""])
sketch11.MapMode = "FlatFace"
sketch11.AttachmentOffset = App.Placement(App.Vector(0, 0, 20.25), App.Rotation())
add_polygon(sketch11, [(43, 4.5), (43, 2), (37, 2), (37, 4.5)])  # lines 0-3
add_polygon(sketch11, [(-15, 4.5), (-15, 2), (-21, 2), (-21, 4.5)])  # lines 4-7
sketch11.addConstraint(Sketcher.Constraint("Vertical", 0))
sketch11.addConstraint(Sketcher.Constraint("Horizontal", 1))
sketch11.addConstraint(Sketcher.Constraint("Vertical", 2))
sketch11.addConstraint(Sketcher.Constraint("Horizontal", 3))
sketch11.addConstraint(Sketcher.Constraint("Vertical", 4))
sketch11.addConstraint(Sketcher.Constraint("Horizontal", 5))
sketch11.addConstraint(Sketcher.Constraint("Vertical", 6))
sketch11.addConstraint(Sketcher.Constraint("Horizontal", 7))
sketch11.addConstraint(Sketcher.Constraint("Horizontal", 1, 2, 4, 2))
sketch11.addConstraint(Sketcher.Constraint("Horizontal", 3, 2, 6, 2))
sketch11.addConstraint(Sketcher.Constraint("Equal", 3, 5))
sketch11.addConstraint(Sketcher.Constraint("DistanceX", 1, 2, 1, 1, 6.0))
sketch11.addConstraint(Sketcher.Constraint("DistanceY", 0, 2, 0, 1, 2.5))
sketch11.addConstraint(Sketcher.Constraint("DistanceX", -1, 1, 0, 2, 43.0))
sketch11.addConstraint(Sketcher.Constraint("DistanceY", -1, 1, 0, 2, 2.0))
sketch11.addConstraint(Sketcher.Constraint("DistanceX", 4, 2, -1, 1, 15.0))
pocket7 = body.newObject("PartDesign::Pocket", "Pocket006")
pocket7.Profile = sketch11
pocket7.Length = 8
pocket7.Reversed = True

# Sketch on XY plane
sketch12 = body.newObject("Sketcher::SketchObject", "Sketch011")
sketch12.AttachmentSupport = (doc.getObject("XY_Plane"), [""])
sketch12.MapMode = "FlatFace"
sketch12.AttachmentOffset = App.Placement(App.Vector(0, 0, 6.5), App.Rotation())
sketch12.addGeometry(Part.Circle(App.Vector(-24.5, 40, 0), App.Vector(0, 0, 1), 1.5), False)
sketch12.addGeometry(Part.Circle(App.Vector(24.5, 40, 0), App.Vector(0, 0, 1), 1.5), False)
sketch12.addGeometry(Part.Circle(App.Vector(-24.5, -18, 0), App.Vector(0, 0, 1), 1.5), False)
sketch12.addGeometry(Part.Circle(App.Vector(24.5, -18, 0), App.Vector(0, 0, 1), 1.5), False)
sketch12.addConstraint(Sketcher.Constraint("Equal", 0, 1))
sketch12.addConstraint(Sketcher.Constraint("Equal", 1, 2))
sketch12.addConstraint(Sketcher.Constraint("Equal", 2, 3))
sketch12.addConstraint(Sketcher.Constraint("Symmetric", 0, 3, 1, 3, -2))
sketch12.addConstraint(Sketcher.Constraint("Symmetric", 2, 3, 3, 3, -2))
sketch12.addConstraint(Sketcher.Constraint("Vertical", 0, 3, 2, 3))
sketch12.addConstraint(Sketcher.Constraint("Diameter", 0, 3.0))
sketch12.addConstraint(Sketcher.Constraint("DistanceY", -1, 1, 0, 3, 40.0))
sketch12.addConstraint(Sketcher.Constraint("DistanceY", 2, 3, -1, 1, 18.0))
sketch12.addConstraint(Sketcher.Constraint("DistanceX", 0, 3, 1, 3, 49.0))
pocket8 = body.newObject("PartDesign::Pocket", "Pocket007")
pocket8.Profile = sketch12
pocket8.Length = 2

# Sketch on XZ plane
sketch13 = body.newObject("Sketcher::SketchObject", "Sketch012")
sketch13.AttachmentSupport = (doc.getObject("XZ_Plane"), [""])
sketch13.MapMode = "FlatFace"
sketch13.AttachmentOffset = App.Placement(App.Vector(0, 0, 46), App.Rotation())
add_polygon(sketch13, [(-26, 23), (-26, 8), (26, 8), (26, 23)])  # lines 0-3
sketch13.addConstraint(Sketcher.Constraint("Vertical", 0))
sketch13.addConstraint(Sketcher.Constraint("Horizontal", 1))
sketch13.addConstraint(Sketcher.Constraint("Vertical", 2))
sketch13.addConstraint(Sketcher.Constraint("Horizontal", 3))
sketch13.addConstraint(Sketcher.Constraint("DistanceX", 1, 1, 1, 2, 53.0))
sketch13.addConstraint(Sketcher.Constraint("DistanceY", 0, 2, 0, 1, 15.3))
sketch13.addConstraint(Sketcher.Constraint("DistanceY", -1, 1, 0, 2, 8.0))
sketch13.addConstraint(Sketcher.Constraint("DistanceX", 0, 2, -1, 1, 26.5))
pocket9 = body.newObject("PartDesign::Pocket", "Pocket008")
pocket9.Profile = sketch13
pocket9.Length = 2

# Sketch on YZ plane
sketch14 = body.newObject("Sketcher::SketchObject", "Sketch013")
sketch14.AttachmentSupport = (doc.getObject("YZ_Plane"), [""])
sketch14.MapMode = "FlatFace"
sketch14.AttachmentOffset = App.Placement(App.Vector(0, 0, -30.25), App.Rotation())
sketch14.addGeometry(Part.Circle(App.Vector(-10.1, 10.5, 0), App.Vector(0, 0, 1), 3), False)  # 0
add_polygon(sketch14, [(19.1, 14), (19.1, 7.5), (3.6, 7.5), (3.6, 14)])  # lines 1-4
add_polygon(sketch14, [(37.1, 11), (37.1, 7.5), (27.6, 7.5), (27.6, 11)])  # lines 5-8
sketch14.addConstraint(Sketcher.Constraint("Vertical", 1))
sketch14.addConstraint(Sketcher.Constraint("Horizontal", 2))
sketch14.addConstraint(Sketcher.Constraint("Vertical", 3))
sketch14.addConstraint(Sketcher.Constraint("Horizontal", 4))
sketch14.addConstraint(Sketcher.Constraint("Vertical", 5))
sketch14.addConstraint(Sketcher.Constraint("Horizontal", 6))
sketch14.addConstraint(Sketcher.Constraint("Vertical", 7))
sketch14.addConstraint(Sketcher.Constraint("Horizontal", 8))
sketch14.addConstraint(Sketcher.Constraint("Horizontal", 2, 2, 5, 2))
sketch14.addConstraint(Sketcher.Constraint("Diameter", 0, 6.0))
sketch14.addConstraint(Sketcher.Constraint("DistanceX", 2, 2, 2, 1, 15.5))
sketch14.addConstraint(Sketcher.Constraint("DistanceX", 6, 2, 6, 1, 9.5))
sketch14.addConstraint(Sketcher.Constraint("DistanceY", 1, 2, 1, 1, 6.5))
sketch14.addConstraint(Sketcher.Constraint("DistanceY", 5, 2, 5, 1, 3.5))
sketch14.addConstraint(Sketcher.Constraint("DistanceY", -1, 1, 3, 2, 14.0))
sketch14.addConstraint(Sketcher.Constraint("DistanceY", 1, 2, 0, 3, 3.0))
sketch14.addConstraint(Sketcher.Constraint("DistanceX", 1, 2, 5, 2, 18.0))
sketch14.addConstraint(Sketcher.Constraint("DistanceX", 0, 3, -1, 1, 10.1))
sketch14.addConstraint(Sketcher.Constraint("DistanceX", -1, 1, 1, 2, 19.15))
pocket10 = body.newObject("PartDesign::Pocket", "Pocket009")
pocket10.Profile = sketch14
pocket10.Length = 2
pocket10.Reversed = True

# Sketch on XZ plane
sketch15 = body.newObject("Sketcher::SketchObject", "Sketch014")
sketch15.AttachmentSupport = (doc.getObject("XZ_Plane"), [""])
sketch15.MapMode = "FlatFace"
sketch15.AttachmentOffset = App.Placement(App.Vector(0, 0, -46), App.Rotation())
add_polygon(sketch15, [(-13, 13), (-13, 8), (-18, 8), (-18, 13)])  # lines 0-3
sketch15.addConstraint(Sketcher.Constraint("Vertical", 0))
sketch15.addConstraint(Sketcher.Constraint("Horizontal", 1))
sketch15.addConstraint(Sketcher.Constraint("Vertical", 2))
sketch15.addConstraint(Sketcher.Constraint("Horizontal", 3))
sketch15.addConstraint(Sketcher.Constraint("Equal", 3, 0))
sketch15.addConstraint(Sketcher.Constraint("DistanceX", 1, 2, 1, 1, 5.0))
sketch15.addConstraint(Sketcher.Constraint("DistanceX", 0, 2, -1, 1, 13.0))
sketch15.addConstraint(Sketcher.Constraint("DistanceY", -1, 1, 0, 2, 8.1))
pocket11 = body.newObject("PartDesign::Pocket", "Pocket010")
pocket11.Profile = sketch15
pocket11.Length = 2
pocket11.Reversed = True
body2 = doc.addObject("PartDesign::Body", "Body001")
doc.recompute()

body.Placement = App.Placement(App.Vector(64, 0, -5), App.Rotation(App.Vector(0, 0, 1), 90))
boolean = body2.newObject("PartDesign::Boolean", "Boolean")
boolean.Type = "Fuse"
boolean.addObjects([body])

doc.recompute()
